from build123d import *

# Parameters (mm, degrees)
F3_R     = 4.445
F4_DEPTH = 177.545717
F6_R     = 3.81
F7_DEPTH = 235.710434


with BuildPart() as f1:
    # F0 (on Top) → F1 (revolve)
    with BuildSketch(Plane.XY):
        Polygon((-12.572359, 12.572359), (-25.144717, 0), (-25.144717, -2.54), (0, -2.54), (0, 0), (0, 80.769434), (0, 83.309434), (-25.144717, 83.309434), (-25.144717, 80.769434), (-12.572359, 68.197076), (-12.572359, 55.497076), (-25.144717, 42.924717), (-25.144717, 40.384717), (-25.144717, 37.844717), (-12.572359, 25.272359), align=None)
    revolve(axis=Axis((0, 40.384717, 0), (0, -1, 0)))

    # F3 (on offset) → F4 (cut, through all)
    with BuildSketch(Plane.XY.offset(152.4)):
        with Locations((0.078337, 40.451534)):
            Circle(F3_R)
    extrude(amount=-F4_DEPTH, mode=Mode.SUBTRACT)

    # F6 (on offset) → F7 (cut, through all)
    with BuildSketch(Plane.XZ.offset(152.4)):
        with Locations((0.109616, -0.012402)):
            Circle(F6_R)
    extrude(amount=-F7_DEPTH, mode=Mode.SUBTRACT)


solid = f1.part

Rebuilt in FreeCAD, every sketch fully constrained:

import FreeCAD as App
import Part
import Sketcher
from FreeCAD import Vector
Q = App.Units.Quantity

doc = App.newDocument("Part")
body = doc.addObject("PartDesign::Body", "Body")

sketch1 = body.newObject("Sketcher::SketchObject", "Sketch")
sketch1.AttachmentSupport = (doc.getObject("XY_Plane"), [""])
sketch1.MapMode = "FlatFace"
sketch1.addGeometry([
    Part.LineSegment(Vector(-12.6, 12.6, 0), Vector(-25.1, 0, 0)),
    Part.LineSegment(Vector(-25.1, 0, 0), Vector(-25.1, -2.5, 0)),
    Part.LineSegment(Vector(-25.1, -2.5, 0), Vector(0, -2.5, 0)),
    Part.LineSegment(Vector(0, -2.5, 0), Vector(0, 83.3, 0)),
    Part.LineSegment(Vector(0, 83.3, 0), Vector(-25.1, 83.3, 0)),
    Part.LineSegment(Vector(-25.1, 83.3, 0), Vector(-25.1, 80.8, 0)),
    Part.LineSegment(Vector(-25.1, 80.8, 0), Vector(-12.6, 68.2, 0)),
    Part.LineSegment(Vector(-12.6, 68.2, 0), Vector(-12.6, 55.5, 0)),
    Part.LineSegment(Vector(-12.6, 55.5, 0), Vector(-25.1, 42.9, 0)),
    Part.LineSegment(Vector(-25.1, 42.9, 0), Vector(-25.1, 37.8, 0)),
    Part.LineSegment(Vector(-25.1, 37.8, 0), Vector(-12.6, 25.3, 0)),
    Part.LineSegment(Vector(-12.6, 25.3, 0), Vector(-12.6, 12.6, 0)),
], False)
sketch1.addConstraint([
    Sketcher.Constraint("Coincident", 0, 2, 1, 1),
    Sketcher.Constraint("Coincident", 1, 2, 2, 1),
    Sketcher.Constraint("Coincident", 2, 2, 3, 1),
    Sketcher.Constraint("Coincident", 3, 2, 4, 1),
    Sketcher.Constraint("Coincident", 4, 2, 5, 1),
    Sketcher.Constraint("Coincident", 5, 2, 6, 1),
    Sketcher.Constraint("Coincident", 6, 2, 7, 1),
    Sketcher.Constraint("Coincident", 7, 2, 8, 1),
    Sketcher.Constraint("Coincident", 8, 2, 9, 1),
    Sketcher.Constraint("Coincident", 9, 2, 10, 1),
    Sketcher.Constraint("Coincident", 10, 2, 11, 1),
    Sketcher.Constraint("Coincident", 11, 2, 0, 1),
    Sketcher.Constraint("Vertical", 1),
    Sketcher.Constraint("Horizontal", 2),
    Sketcher.Constraint("Vertical", 3),
    Sketcher.Constraint("Horizontal", 4),
    Sketcher.Constraint("Vertical", 5),
    Sketcher.Constraint("Vertical", 7),
    Sketcher.Constraint("Vertical", 9),
    Sketcher.Constraint("Vertical", 11),
    Sketcher.Constraint("PointOnObject", 0, 2, -1),
    Sketcher.Constraint("PointOnObject", 2, 2, -2),
    Sketcher.Constraint("Perpendicular", 0, 6),
    Sketcher.Constraint("Perpendicular", 6, 8),
    Sketcher.Constraint("Perpendicular", 8, 10),
    Sketcher.Constraint("Vertical", 1, 2, 4, 2),
    Sketcher.Constraint("Vertical", 5, 2, 8, 2),
    Sketcher.Constraint("Vertical", 7, 2, 10, 2),
    Sketcher.Constraint("Equal", 1, 5),
    Sketcher.Constraint("Equal", 7, 11),
    Sketcher.Constraint("Equal", 0, 6),
    Sketcher.Constraint("DistanceY", 1, 2, 1, 1, Q("0.1 in")),
    Sketcher.Constraint("DistanceY", 7, 2, 7, 1, Q("0.5 in")),
    Sketcher.Constraint("DistanceY", 9, 2, 9, 1, Q("0.2 in")),
    Sketcher.Constraint("Distance", 0, Q("0.7 in")),
    Sketcher.Constraint("DistanceX", 2, 1, 2, 2, Q("25.144717 mm")),
])
revolution = body.newObject("PartDesign::Revolution", "Revolution")
revolution.Profile = sketch1
revolution.ReferenceAxis = (sketch1, ["V_Axis"])
revolution.Angle = 360

sketch2 = body.newObject("Sketcher::SketchObject", "Sketch001")
sketch2.AttachmentSupport = (doc.getObject("XY_Plane"), [""])
sketch2.MapMode = "FlatFace"
sketch2.AttachmentOffset = App.Placement(Vector(0, 0, 6 * 25.4), App.Rotation())
sketch2.addGeometry(Part.Circle(Vector(0.1, 40.5, 0), Vector(0, 0, 1), 4.4), False)
sketch2.addConstraint([
    Sketcher.Constraint("Diameter", 0, Q("0.35 in")),
    Sketcher.Constraint("DistanceX", -1, 1, 0, 3, Q("0.078337 mm")),
    Sketcher.Constraint("DistanceY", -1, 1, 0, 3, Q("40.451534 mm")),
])
pocket1 = body.newObject("PartDesign::Pocket", "Pocket")
pocket1.Profile = sketch2
pocket1.Type = "ThroughAll"

sketch3 = body.newObject("Sketcher::SketchObject", "Sketch002")
sketch3.AttachmentSupport = (doc.getObject("XZ_Plane"), [""])
sketch3.MapMode = "FlatFace"
sketch3.AttachmentOffset = App.Placement(Vector(0, 0, 6 * 25.4), App.Rotation())
sketch3.addGeometry(Part.Circle(Vector(0.1, 0, 0), Vector(0, 0, 1), 3.8), False)
sketch3.addConstraint([
    Sketcher.Constraint("Diameter", 0, Q("0.3 in")),
    Sketcher.Constraint("DistanceX", -1, 1, 0, 3, Q("0.109616 mm")),
    Sketcher.Constraint("DistanceY", 0, 3, -1, 1, Q("0.012402 mm")),
])
pocket2 = body.newObject("PartDesign::Pocket", "Pocket001")
pocket2.Profile = sketch3
pocket2.Type = "ThroughAll"

doc.recompute()
